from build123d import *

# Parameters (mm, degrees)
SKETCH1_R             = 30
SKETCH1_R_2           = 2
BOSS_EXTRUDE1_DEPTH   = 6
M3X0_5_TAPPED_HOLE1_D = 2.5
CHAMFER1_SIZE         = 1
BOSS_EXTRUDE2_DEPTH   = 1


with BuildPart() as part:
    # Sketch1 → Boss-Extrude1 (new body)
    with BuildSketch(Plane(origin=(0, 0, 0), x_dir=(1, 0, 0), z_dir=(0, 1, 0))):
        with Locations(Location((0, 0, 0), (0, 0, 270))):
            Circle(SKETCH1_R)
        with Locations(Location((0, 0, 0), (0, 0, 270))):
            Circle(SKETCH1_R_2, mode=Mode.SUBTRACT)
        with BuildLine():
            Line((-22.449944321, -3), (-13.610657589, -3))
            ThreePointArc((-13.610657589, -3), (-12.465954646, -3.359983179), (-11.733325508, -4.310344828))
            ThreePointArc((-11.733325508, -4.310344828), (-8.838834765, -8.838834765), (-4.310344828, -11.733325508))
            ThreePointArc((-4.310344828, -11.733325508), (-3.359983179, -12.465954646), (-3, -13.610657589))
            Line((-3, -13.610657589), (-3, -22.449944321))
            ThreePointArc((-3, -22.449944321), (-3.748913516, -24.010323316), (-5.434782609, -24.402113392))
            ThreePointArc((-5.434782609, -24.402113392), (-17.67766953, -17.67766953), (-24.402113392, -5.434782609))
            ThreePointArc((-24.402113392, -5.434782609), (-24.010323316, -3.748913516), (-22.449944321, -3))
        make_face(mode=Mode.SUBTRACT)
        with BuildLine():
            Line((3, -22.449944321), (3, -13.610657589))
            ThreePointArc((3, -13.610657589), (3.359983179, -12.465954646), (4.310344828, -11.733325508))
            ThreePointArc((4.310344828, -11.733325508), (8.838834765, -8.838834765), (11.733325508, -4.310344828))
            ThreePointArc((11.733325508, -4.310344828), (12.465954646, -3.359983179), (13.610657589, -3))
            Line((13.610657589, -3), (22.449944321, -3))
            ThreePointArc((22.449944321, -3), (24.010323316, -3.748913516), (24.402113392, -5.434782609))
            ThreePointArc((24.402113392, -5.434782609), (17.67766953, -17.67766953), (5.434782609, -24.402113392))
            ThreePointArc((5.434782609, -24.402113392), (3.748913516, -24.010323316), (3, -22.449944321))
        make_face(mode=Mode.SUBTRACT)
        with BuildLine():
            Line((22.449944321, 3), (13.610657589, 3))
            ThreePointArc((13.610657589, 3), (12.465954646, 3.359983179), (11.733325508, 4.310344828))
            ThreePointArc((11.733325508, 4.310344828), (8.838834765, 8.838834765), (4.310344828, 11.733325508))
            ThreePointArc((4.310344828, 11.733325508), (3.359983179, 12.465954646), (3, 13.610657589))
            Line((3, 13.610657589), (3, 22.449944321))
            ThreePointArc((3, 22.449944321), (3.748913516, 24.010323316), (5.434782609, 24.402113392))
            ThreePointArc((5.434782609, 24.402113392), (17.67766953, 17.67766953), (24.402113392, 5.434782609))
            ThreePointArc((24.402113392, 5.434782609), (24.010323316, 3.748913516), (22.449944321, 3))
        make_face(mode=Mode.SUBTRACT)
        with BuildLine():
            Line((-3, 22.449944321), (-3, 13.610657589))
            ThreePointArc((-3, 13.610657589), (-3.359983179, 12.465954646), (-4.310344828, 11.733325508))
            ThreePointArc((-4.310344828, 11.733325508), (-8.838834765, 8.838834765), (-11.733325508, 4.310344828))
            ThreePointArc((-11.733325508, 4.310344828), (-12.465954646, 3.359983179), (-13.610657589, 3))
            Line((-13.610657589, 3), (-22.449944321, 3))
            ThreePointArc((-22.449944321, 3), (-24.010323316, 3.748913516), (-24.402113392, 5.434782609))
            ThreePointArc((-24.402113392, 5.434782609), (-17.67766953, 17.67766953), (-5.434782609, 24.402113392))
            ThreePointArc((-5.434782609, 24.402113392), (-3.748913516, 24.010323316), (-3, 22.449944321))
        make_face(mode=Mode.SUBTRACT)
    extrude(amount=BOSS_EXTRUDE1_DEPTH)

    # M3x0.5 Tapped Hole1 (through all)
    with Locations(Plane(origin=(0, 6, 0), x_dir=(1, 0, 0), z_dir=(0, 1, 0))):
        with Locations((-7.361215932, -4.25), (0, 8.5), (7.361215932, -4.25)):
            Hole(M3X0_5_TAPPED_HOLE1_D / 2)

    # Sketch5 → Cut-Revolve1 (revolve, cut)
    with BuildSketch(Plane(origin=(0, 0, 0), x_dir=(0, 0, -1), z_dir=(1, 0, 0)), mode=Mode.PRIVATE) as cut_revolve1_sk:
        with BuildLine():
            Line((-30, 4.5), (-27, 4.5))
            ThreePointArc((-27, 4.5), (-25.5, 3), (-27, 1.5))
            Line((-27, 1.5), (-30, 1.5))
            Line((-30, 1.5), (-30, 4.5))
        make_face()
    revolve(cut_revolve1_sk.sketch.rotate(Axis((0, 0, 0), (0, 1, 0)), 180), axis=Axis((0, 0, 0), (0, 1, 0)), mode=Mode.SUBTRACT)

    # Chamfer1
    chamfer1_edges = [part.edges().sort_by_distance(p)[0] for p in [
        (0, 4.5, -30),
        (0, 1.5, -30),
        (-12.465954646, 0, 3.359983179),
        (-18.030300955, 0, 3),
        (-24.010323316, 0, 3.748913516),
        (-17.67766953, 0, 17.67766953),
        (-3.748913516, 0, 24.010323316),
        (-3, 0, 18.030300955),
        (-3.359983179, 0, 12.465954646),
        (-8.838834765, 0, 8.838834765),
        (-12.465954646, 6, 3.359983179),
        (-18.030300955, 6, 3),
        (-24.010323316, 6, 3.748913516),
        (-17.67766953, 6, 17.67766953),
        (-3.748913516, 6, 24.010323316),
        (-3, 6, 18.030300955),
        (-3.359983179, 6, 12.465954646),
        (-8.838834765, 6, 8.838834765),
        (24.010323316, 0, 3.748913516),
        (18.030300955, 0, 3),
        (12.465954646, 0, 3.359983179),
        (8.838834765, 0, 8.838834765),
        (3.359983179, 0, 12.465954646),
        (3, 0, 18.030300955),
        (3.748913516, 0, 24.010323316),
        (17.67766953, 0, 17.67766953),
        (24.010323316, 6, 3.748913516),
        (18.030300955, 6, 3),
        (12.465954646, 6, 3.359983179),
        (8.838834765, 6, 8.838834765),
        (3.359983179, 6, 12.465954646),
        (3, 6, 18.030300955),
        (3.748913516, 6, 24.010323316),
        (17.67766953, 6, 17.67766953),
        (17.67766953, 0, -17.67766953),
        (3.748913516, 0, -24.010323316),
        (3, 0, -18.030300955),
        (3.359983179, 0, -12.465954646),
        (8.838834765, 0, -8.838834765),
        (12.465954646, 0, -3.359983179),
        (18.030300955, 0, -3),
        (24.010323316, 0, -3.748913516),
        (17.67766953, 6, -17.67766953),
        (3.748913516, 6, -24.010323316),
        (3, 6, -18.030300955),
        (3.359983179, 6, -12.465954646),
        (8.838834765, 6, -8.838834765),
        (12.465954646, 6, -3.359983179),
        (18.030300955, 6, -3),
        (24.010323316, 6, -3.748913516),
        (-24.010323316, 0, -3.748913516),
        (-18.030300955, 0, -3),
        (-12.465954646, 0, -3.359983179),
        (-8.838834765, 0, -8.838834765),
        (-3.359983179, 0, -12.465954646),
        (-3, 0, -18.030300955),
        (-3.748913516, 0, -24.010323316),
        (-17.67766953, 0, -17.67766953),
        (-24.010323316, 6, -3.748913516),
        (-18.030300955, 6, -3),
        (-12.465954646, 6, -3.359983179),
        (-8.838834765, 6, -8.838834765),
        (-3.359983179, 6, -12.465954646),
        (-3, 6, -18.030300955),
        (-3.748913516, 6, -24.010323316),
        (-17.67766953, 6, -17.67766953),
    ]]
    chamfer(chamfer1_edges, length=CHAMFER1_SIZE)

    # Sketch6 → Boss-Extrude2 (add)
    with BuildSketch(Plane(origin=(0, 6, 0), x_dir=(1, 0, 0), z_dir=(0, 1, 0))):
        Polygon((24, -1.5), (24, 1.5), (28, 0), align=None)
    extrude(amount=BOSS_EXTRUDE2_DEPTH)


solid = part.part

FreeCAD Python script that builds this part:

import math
import FreeCAD as App
import Part
import Sketcher


def edges_at(feature, points):
    """Names of the edges that pass closest to the given points."""
    edges = feature.Shape.Edges
    near = lambda p: min(range(len(edges)), key=lambda i: edges[i].distToShape(Part.Vertex(*p))[0])
    return sorted({f"Edge{near(p) + 1}" for p in points})

doc = App.newDocument("Part")
body = doc.addObject("PartDesign::Body", "Body")

sketch1 = body.newObject("Sketcher::SketchObject", "Sketch")
sketch1.AttachmentSupport = (doc.getObject("XZ_Plane"), [""])
sketch1.MapMode = "FlatFace"
sketch1.addGeometry(Part.Circle(App.Vector(0, 0, 0), App.Vector(0, 0, 1), 30), False)
sketch1.addGeometry(Part.ArcOfCircle(Part.Circle(App.Vector(-5, -22.4, 0), App.Vector(0, 0, 1), 2), math.radians(-103), math.radians(0)), False)
sketch1.addGeometry(Part.LineSegment(App.Vector(-3, -22.4, 0), App.Vector(-3, -13.6, 0)), False)
sketch1.addGeometry(Part.ArcOfCircle(Part.Circle(App.Vector(-5, -13.6, 0), App.Vector(0, 0, 1), 2), math.radians(0), math.radians(70)), False)
sketch1.addGeometry(Part.ArcOfCircle(Part.Circle(App.Vector(0, 0, 0), App.Vector(0, 0, 1), 12.5), math.radians(-160), math.radians(-110)), False)
sketch1.addGeometry(Part.ArcOfCircle(Part.Circle(App.Vector(-13.6, -5, 0), App.Vector(0, 0, 1), 2), math.radians(20), math.radians(90)), False)
sketch1.addGeometry(Part.LineSegment(App.Vector(-13.6, -3, 0), App.Vector(-22.4, -3, 0)), False)
sketch1.addGeometry(Part.ArcOfCircle(Part.Circle(App.Vector(-22.4, -5, 0), App.Vector(0, 0, 1), 2), math.radians(90), math.radians(193)), False)
sketch1.addGeometry(Part.ArcOfCircle(Part.Circle(App.Vector(0, 0, 0), App.Vector(0, 0, 1), 25), math.radians(-167), math.radians(-103)), False)
sketch1.addGeometry(Part.Circle(App.Vector(0, 0, 0), App.Vector(0, 0, 1), 2), False)
sketch1.addGeometry(Part.ArcOfCircle(Part.Circle(App.Vector(-22.4, 5, 0), App.Vector(0, 0, 1), 2), math.radians(167), math.radians(270)), False)
sketch1.addGeometry(Part.LineSegment(App.Vector(-22.4, 3, 0), App.Vector(-13.6, 3, 0)), False)
sketch1.addGeometry(Part.ArcOfCircle(Part.Circle(App.Vector(-13.6, 5, 0), App.Vector(0, 0, 1), 2), math.radians(-90), math.radians(-20)), False)
sketch1.addGeometry(Part.ArcOfCircle(Part.Circle(App.Vector(0, 0, 0), App.Vector(0, 0, 1), 12.5), math.radians(110), math.radians(160)), False)
sketch1.addGeometry(Part.ArcOfCircle(Part.Circle(App.Vector(-5, 13.6, 0), App.Vector(0, 0, 1), 2), math.radians(-70), math.radians(0)), False)
sketch1.addGeometry(Part.LineSegment(App.Vector(-3, 13.6, 0), App.Vector(-3, 22.4, 0)), False)
sketch1.addGeometry(Part.ArcOfCircle(Part.Circle(App.Vector(-5, 22.4, 0), App.Vector(0, 0, 1), 2), math.radians(0), math.radians(103)), False)
sketch1.addGeometry(Part.ArcOfCircle(Part.Circle(App.Vector(0, 0, 0), App.Vector(0, 0, 1), 25), math.radians(103), math.radians(167)), False)
sketch1.addGeometry(Part.ArcOfCircle(Part.Circle(App.Vector(22.4, -5, 0), App.Vector(0, 0, 1), 2), math.radians(-13), math.radians(90)), False)
sketch1.addGeometry(Part.LineSegment(App.Vector(22.4, -3, 0), App.Vector(13.6, -3, 0)), False)
sketch1.addGeometry(Part.ArcOfCircle(Part.Circle(App.Vector(13.6, -5, 0), App.Vector(0, 0, 1), 2), math.radians(90), math.radians(160)), False)
sketch1.addGeometry(Part.ArcOfCircle(Part.Circle(App.Vector(0, 0, 0), App.Vector(0, 0, 1), 12.5), math.radians(-70), math.radians(-20)), False)
sketch1.addGeometry(Part.ArcOfCircle(Part.Circle(App.Vector(5, -13.6, 0), App.Vector(0, 0, 1), 2), math.radians(110), math.radians(180)), False)
sketch1.addGeometry(Part.LineSegment(App.Vector(3, -13.6, 0), App.Vector(3, -22.4, 0)), False)
sketch1.addGeometry(Part.ArcOfCircle(Part.Circle(App.Vector(5, -22.4, 0), App.Vector(0, 0, 1), 2), math.radians(-180), math.radians(-77)), False)
sketch1.addGeometry(Part.ArcOfCircle(Part.Circle(App.Vector(0, 0, 0), App.Vector(0, 0, 1), 25), math.radians(-77), math.radians(-13)), False)
sketch1.addGeometry(Part.ArcOfCircle(Part.Circle(App.Vector(5, 22.4, 0), App.Vector(0, 0, 1), 2), math.radians(77), math.radians(180)), False)
sketch1.addGeometry(Part.LineSegment(App.Vector(3, 22.4, 0), App.Vector(3, 13.6, 0)), False)
sketch1.addGeometry(Part.ArcOfCircle(Part.Circle(App.Vector(5, 13.6, 0), App.Vector(0, 0, 1), 2), math.radians(180), math.radians(250)), False)
sketch1.addGeometry(Part.ArcOfCircle(Part.Circle(App.Vector(0, 0, 0), App.Vector(0, 0, 1), 12.5), math.radians(20), math.radians(70)), False)
sketch1.addGeometry(Part.ArcOfCircle(Part.Circle(App.Vector(13.6, 5, 0), App.Vector(0, 0, 1), 2), math.radians(-160), math.radians(-90)), False)
sketch1.addGeometry(Part.LineSegment(App.Vector(13.6, 3, 0), App.Vector(22.4, 3, 0)), False)
sketch1.addGeometry(Part.ArcOfCircle(Part.Circle(App.Vector(22.4, 5, 0), App.Vector(0, 0, 1), 2), math.radians(-90), math.radians(13)), False)
sketch1.addGeometry(Part.ArcOfCircle(Part.Circle(App.Vector(0, 0, 0), App.Vector(0, 0, 1), 25), math.radians(13), math.radians(77)), False)
sketch1.addConstraint(Sketcher.Constraint("Tangent", 1, 2, 2, 1))
sketch1.addConstraint(Sketcher.Constraint("Tangent", 2, 2, 3, 1))
sketch1.addConstraint(Sketcher.Constraint("Tangent", 3, 2, 4, 2))
sketch1.addConstraint(Sketcher.Constraint("Tangent", 4, 1, 5, 1))
sketch1.addConstraint(Sketcher.Constraint("Tangent", 5, 2, 6, 1))
sketch1.addConstraint(Sketcher.Constraint("Tangent", 6, 2, 7, 1))
sketch1.addConstraint(Sketcher.Constraint("Tangent", 7, 2, 8, 1))
sketch1.addConstraint(Sketcher.Constraint("Tangent", 8, 2, 1, 1))
sketch1.addConstraint(Sketcher.Constraint("Tangent", 10, 2, 11, 1))
sketch1.addConstraint(Sketcher.Constraint("Tangent", 11, 2, 12, 1))
sketch1.addConstraint(Sketcher.Constraint("Tangent", 12, 2, 13, 2))
sketch1.addConstraint(Sketcher.Constraint("Tangent", 13, 1, 14, 1))
sketch1.addConstraint(Sketcher.Constraint("Tangent", 14, 2, 15, 1))
sketch1.addConstraint(Sketcher.Constraint("Tangent", 15, 2, 16, 1))
sketch1.addConstraint(Sketcher.Constraint("Tangent", 16, 2, 17, 1))
sketch1.addConstraint(Sketcher.Constraint("Tangent", 17, 2, 10, 1))
sketch1.addConstraint(Sketcher.Constraint("Tangent", 18, 2, 19, 1))
sketch1.addConstraint(Sketcher.Constraint("Tangent", 19, 2, 20, 1))
sketch1.addConstraint(Sketcher.Constraint("Tangent", 20, 2, 21, 2))
sketch1.addConstraint(Sketcher.Constraint("Tangent", 21, 1, 22, 1))
sketch1.addConstraint(Sketcher.Constraint("Tangent", 22, 2, 23, 1))
sketch1.addConstraint(Sketcher.Constraint("Tangent", 23, 2, 24, 1))
sketch1.addConstraint(Sketcher.Constraint("Tangent", 24, 2, 25, 1))
sketch1.addConstraint(Sketcher.Constraint("Tangent", 25, 2, 18, 1))
sketch1.addConstraint(Sketcher.Constraint("Tangent", 26, 2, 27, 1))
sketch1.addConstraint(Sketcher.Constraint("Tangent", 27, 2, 28, 1))
sketch1.addConstraint(Sketcher.Constraint("Tangent", 28, 2, 29, 2))
sketch1.addConstraint(Sketcher.Constraint("Tangent", 29, 1, 30, 1))
sketch1.addConstraint(Sketcher.Constraint("Tangent", 30, 2, 31, 1))
sketch1.addConstraint(Sketcher.Constraint("Tangent", 31, 2, 32, 1))
sketch1.addConstraint(Sketcher.Constraint("Tangent", 32, 2, 33, 1))
sketch1.addConstraint(Sketcher.Constraint("Tangent", 33, 2, 26, 1))
sketch1.addConstraint(Sketcher.Constraint("Vertical", 2))
sketch1.addConstraint(Sketcher.Constraint("Horizontal", 6))
sketch1.addConstraint(Sketcher.Constraint("Horizontal", 11))
sketch1.addConstraint(Sketcher.Constraint("Vertical", 15))
sketch1.addConstraint(Sketcher.Constraint("Horizontal", 19))
sketch1.addConstraint(Sketcher.Constraint("Vertical", 23))
sketch1.addConstraint(Sketcher.Constraint("Vertical", 27))
sketch1.addConstraint(Sketcher.Constraint("Horizontal", 31))
sketch1.addConstraint(Sketcher.Constraint("Coincident", 0, 3, -1, 1))
sketch1.addConstraint(Sketcher.Constraint("Coincident", 4, 3, -1, 1))
sketch1.addConstraint(Sketcher.Constraint("Coincident", 8, 3, -1, 1))
sketch1.addConstraint(Sketcher.Constraint("Coincident", 9, 3, -1, 1))
sketch1.addConstraint(Sketcher.Constraint("Coincident", 13, 3, -1, 1))
sketch1.addConstraint(Sketcher.Constraint("Coincident", 17, 3, -1, 1))
sketch1.addConstraint(Sketcher.Constraint("Coincident", 21, 3, -1, 1))
sketch1.addConstraint(Sketcher.Constraint("Coincident", 25, 3, -1, 1))
sketch1.addConstraint(Sketcher.Constraint("Coincident", 29, 3, -1, 1))
sketch1.addConstraint(Sketcher.Constraint("Coincident", 33, 3, -1, 1))
sketch1.addConstraint(Sketcher.Constraint("Equal", 1, 3))
sketch1.addConstraint(Sketcher.Constraint("Equal", 3, 5))
sketch1.addConstraint(Sketcher.Constraint("Equal", 5, 7))
sketch1.addConstraint(Sketcher.Constraint("Equal", 7, 9))
sketch1.addConstraint(Sketcher.Constraint("Equal", 9, 10))
sketch1.addConstraint(Sketcher.Constraint("Equal", 10, 12))
sketch1.addConstraint(Sketcher.Constraint("Equal", 4, 13))
sketch1.addConstraint(Sketcher.Constraint("Equal", 12, 14))
sketch1.addConstraint(Sketcher.Constraint("Equal", 14, 16))
sketch1.addConstraint(Sketcher.Constraint("Equal", 8, 17))
sketch1.addConstraint(Sketcher.Constraint("Equal", 16, 18))
sketch1.addConstraint(Sketcher.Constraint("Equal", 18, 20))
sketch1.addConstraint(Sketcher.Constraint("Equal", 13, 21))
sketch1.addConstraint(Sketcher.Constraint("Equal", 20, 22))
sketch1.addConstraint(Sketcher.Constraint("Equal", 22, 24))
sketch1.addConstraint(Sketcher.Constraint("Equal", 17, 25))
sketch1.addConstraint(Sketcher.Constraint("Equal", 24, 26))
sketch1.addConstraint(Sketcher.Constraint("Equal", 26, 28))
sketch1.addConstraint(Sketcher.Constraint("Equal", 21, 29))
sketch1.addConstraint(Sketcher.Constraint("Equal", 28, 30))
sketch1.addConstraint(Sketcher.Constraint("Equal", 30, 32))
sketch1.addConstraint(Sketcher.Constraint("Equal", 25, 33))
sketch1.addConstraint(Sketcher.Constraint("Horizontal", 7, 3, 18, 3))
sketch1.addConstraint(Sketcher.Constraint("Horizontal", 3, 3, 22, 3))
sketch1.addConstraint(Sketcher.Constraint("Horizontal", 16, 3, 26, 3))
sketch1.addConstraint(Sketcher.Constraint("Horizontal", 12, 3, 30, 3))
sketch1.addConstraint(Sketcher.Constraint("Vertical", 7, 3, 10, 3))
sketch1.addConstraint(Sketcher.Constraint("Vertical", 3, 3, 14, 3))
sketch1.addConstraint(Sketcher.Constraint("Equal", 31, 2))
sketch1.addConstraint(Sketcher.Constraint("Diameter", 0, 60.0))
sketch1.addConstraint(Sketcher.Constraint("Diameter", 9, 4.0))
sketch1.addConstraint(Sketcher.Constraint("Radius", 8, 25.0))
sketch1.addConstraint(Sketcher.Constraint("Radius", 4, 12.5))
sketch1.addConstraint(Sketcher.Constraint("DistanceX", 1, 3, -1, 1, 5.0))
pad1 = body.newObject("PartDesign::Pad", "Pad")
pad1.Profile = sketch1
pad1.Length = 6
pad1.Reversed = True

sketch2 = body.newObject("Sketcher::SketchObject", "Sketch001")
sketch2.AttachmentSupport = (doc.getObject("XZ_Plane"), [""])
sketch2.MapMode = "FlatFace"
sketch2.AttachmentOffset = App.Placement(App.Vector(0, 0, -6), App.Rotation())
sketch2.addGeometry(Part.Circle(App.Vector(-7.4, 4.2, 0), App.Vector(0, 0, 1), 1.2), False)
sketch2.addGeometry(Part.Circle(App.Vector(0, -8.5, 0), App.Vector(0, 0, 1), 1.2), False)
sketch2.addGeometry(Part.Circle(App.Vector(7.4, 4.2, 0), App.Vector(0, 0, 1), 1.2), False)
sketch2.addConstraint(Sketcher.Constraint("Equal", 0, 1))
sketch2.addConstraint(Sketcher.Constraint("Equal", 1, 2))
sketch2.addConstraint(Sketcher.Constraint("Symmetric", 0, 3, 2, 3, -2))
sketch2.addConstraint(Sketcher.Constraint("PointOnObject", 1, 3, -2))
sketch2.addConstraint(Sketcher.Constraint("Diameter", 0, 2.5))
sketch2.addConstraint(Sketcher.Constraint("DistanceY", 1, 3, -1, 1, 8.5))
sketch2.addConstraint(Sketcher.Constraint("DistanceY", -1, 1, 0, 3, 4.25))
sketch2.addConstraint(Sketcher.Constraint("DistanceX", 0, 3, 2, 3, 14.722432))
doc.recompute()
hole = body.newObject("PartDesign::Hole", "Hole")
hole.Profile = sketch2
hole.ThreadType = "None"
hole.Diameter = 2.5
hole.DepthType = "ThroughAll"
hole.Reversed = True

sketch3 = body.newObject("Sketcher::SketchObject", "Sketch002")
sketch3.AttachmentSupport = (doc.getObject("YZ_Plane"), [""])
sketch3.MapMode = "FlatFace"
sketch3.addGeometry(Part.LineSegment(App.Vector(4.5, 27, 0), App.Vector(4.5, 30, 0)), False)
sketch3.addGeometry(Part.LineSegment(App.Vector(4.5, 30, 0), App.Vector(1.5, 30, 0)), False)
sketch3.addGeometry(Part.LineSegment(App.Vector(1.5, 30, 0), App.Vector(1.5, 27, 0)), False)
sketch3.addGeometry(Part.ArcOfCircle(Part.Circle(App.Vector(3, 27, 0), App.Vector(0, 0, 1), 1.5), math.radians(180), math.radians(360)), False)
sketch3.addConstraint(Sketcher.Constraint("Coincident", 0, 2, 1, 1))
sketch3.addConstraint(Sketcher.Constraint("Coincident", 1, 2, 2, 1))
sketch3.addConstraint(Sketcher.Constraint("Tangent", 2, 2, 3, 1))
sketch3.addConstraint(Sketcher.Constraint("Tangent", 3, 2, 0, 1))
sketch3.addConstraint(Sketcher.Constraint("Vertical", 0))
sketch3.addConstraint(Sketcher.Constraint("Horizontal", 1))
sketch3.addConstraint(Sketcher.Constraint("Vertical", 2))
sketch3.addConstraint(Sketcher.Constraint("Equal", 1, 0))
sketch3.addConstraint(Sketcher.Constraint("Radius", 3, 1.5))
sketch3.addConstraint(Sketcher.Constraint("DistanceX", -1, 1, 3, 3, 3.0))
sketch3.addConstraint(Sketcher.Constraint("DistanceY", -1, 1, 3, 3, 27.0))
groove = body.newObject("PartDesign::Groove", "Groove")
groove.Profile = sketch3
groove.ReferenceAxis = (sketch3, ["H_Axis"])
groove.Angle = 360
doc.recompute()

chamfer = body.newObject("PartDesign::Chamfer", "Chamfer")
chamfer.Base = (groove, edges_at(groove, [
    (0, 4.5, -30),
    (0, 1.5, -30),
    (-12.466, 0, 3.36),
    (-18.03, 0, 3),
    (-24.01, 0, 3.749),
    (-17.678, 0, 17.678),
    (-3.749, 0, 24.01),
    (-3, 0, 18.03),
    (-3.36, 0, 12.466),
    (-8.839, 0, 8.839),
    (-12.466, 6, 3.36),
    (-18.03, 6, 3),
    (-24.01, 6, 3.749),
    (-17.678, 6, 17.678),
    (-3.749, 6, 24.01),
    (-3, 6, 18.03),
    (-3.36, 6, 12.466),
    (-8.839, 6, 8.839),
    (24.01, 0, 3.749),
    (18.03, 0, 3),
    (12.466, 0, 3.36),
    (8.839, 0, 8.839),
    (3.36, 0, 12.466),
    (3, 0, 18.03),
    (3.749, 0, 24.01),
    (17.678, 0, 17.678),
    (24.01, 6, 3.749),
    (18.03, 6, 3),
    (12.466, 6, 3.36),
    (8.839, 6, 8.839),
    (3.36, 6, 12.466),
    (3, 6, 18.03),
    (3.749, 6, 24.01),
    (17.678, 6, 17.678),
    (17.678, 0, -17.678),
    (3.749, 0, -24.01),
    (3, 0, -18.03),
    (3.36, 0, -12.466),
    (8.839, 0, -8.839),
    (12.466, 0, -3.36),
    (18.03, 0, -3),
    (24.01, 0, -3.749),
    (17.678, 6, -17.678),
    (3.749, 6, -24.01),
    (3, 6, -18.03),
    (3.36, 6, -12.466),
    (8.839, 6, -8.839),
    (12.466, 6, -3.36),
    (18.03, 6, -3),
    (24.01, 6, -3.749),
    (-24.01, 0, -3.749),
    (-18.03, 0, -3),
    (-12.466, 0, -3.36),
    (-8.839, 0, -8.839),
    (-3.36, 0, -12.466),
    (-3, 0, -18.03),
    (-3.749, 0, -24.01),
    (-17.678, 0, -17.678),
    (-24.01, 6, -3.749),
    (-18.03, 6, -3),
    (-12.466, 6, -3.36),
    (-8.839, 6, -8.839),
    (-3.36, 6, -12.466),
    (-3, 6, -18.03),
    (-3.749, 6, -24.01),
    (-17.678, 6, -17.678),
]))
chamfer.Size = 1

sketch4 = body.newObject("Sketcher::SketchObject", "Sketch003")
sketch4.AttachmentSupport = (doc.getObject("XZ_Plane"), [""])
sketch4.MapMode = "FlatFace"
sketch4.AttachmentOffset = App.Placement(App.Vector(0, 0, -6), App.Rotation())
sketch4.addGeometry(Part.LineSegment(App.Vector(24, -1.5, 0), App.Vector(24, 1.5, 0)), False)
sketch4.addGeometry(Part.LineSegment(App.Vector(24, 1.5, 0), App.Vector(28, 0, 0)), False)
sketch4.addGeometry(Part.LineSegment(App.Vector(28, 0, 0), App.Vector(24, -1.5, 0)), False)
sketch4.addConstraint(Sketcher.Constraint("Coincident", 0, 2, 1, 1))
sketch4.addConstraint(Sketcher.Constraint("Coincident", 1, 2, 2, 1))
sketch4.addConstraint(Sketcher.Constraint("Coincident", 2, 2, 0, 1))
sketch4.addConstraint(Sketcher.Constraint("Vertical", 0))
sketch4.addConstraint(Sketcher.Constraint("PointOnObject", 1, 2, -1))
sketch4.addConstraint(Sketcher.Constraint("Equal", 1, 2))
sketch4.addConstraint(Sketcher.Constraint("DistanceY", 0, 1, 0, 2, 3.0))
sketch4.addConstraint(Sketcher.Constraint("DistanceX", -1, 1, 0, 2, 24.0))
sketch4.addConstraint(Sketcher.Constraint("DistanceX", -1, 1, 1, 2, 28.0))
pad2 = body.newObject("PartDesign::Pad", "Pad001")
pad2.Profile = sketch4
pad2.Length = 1
pad2.Reversed = True

doc.recompute()
